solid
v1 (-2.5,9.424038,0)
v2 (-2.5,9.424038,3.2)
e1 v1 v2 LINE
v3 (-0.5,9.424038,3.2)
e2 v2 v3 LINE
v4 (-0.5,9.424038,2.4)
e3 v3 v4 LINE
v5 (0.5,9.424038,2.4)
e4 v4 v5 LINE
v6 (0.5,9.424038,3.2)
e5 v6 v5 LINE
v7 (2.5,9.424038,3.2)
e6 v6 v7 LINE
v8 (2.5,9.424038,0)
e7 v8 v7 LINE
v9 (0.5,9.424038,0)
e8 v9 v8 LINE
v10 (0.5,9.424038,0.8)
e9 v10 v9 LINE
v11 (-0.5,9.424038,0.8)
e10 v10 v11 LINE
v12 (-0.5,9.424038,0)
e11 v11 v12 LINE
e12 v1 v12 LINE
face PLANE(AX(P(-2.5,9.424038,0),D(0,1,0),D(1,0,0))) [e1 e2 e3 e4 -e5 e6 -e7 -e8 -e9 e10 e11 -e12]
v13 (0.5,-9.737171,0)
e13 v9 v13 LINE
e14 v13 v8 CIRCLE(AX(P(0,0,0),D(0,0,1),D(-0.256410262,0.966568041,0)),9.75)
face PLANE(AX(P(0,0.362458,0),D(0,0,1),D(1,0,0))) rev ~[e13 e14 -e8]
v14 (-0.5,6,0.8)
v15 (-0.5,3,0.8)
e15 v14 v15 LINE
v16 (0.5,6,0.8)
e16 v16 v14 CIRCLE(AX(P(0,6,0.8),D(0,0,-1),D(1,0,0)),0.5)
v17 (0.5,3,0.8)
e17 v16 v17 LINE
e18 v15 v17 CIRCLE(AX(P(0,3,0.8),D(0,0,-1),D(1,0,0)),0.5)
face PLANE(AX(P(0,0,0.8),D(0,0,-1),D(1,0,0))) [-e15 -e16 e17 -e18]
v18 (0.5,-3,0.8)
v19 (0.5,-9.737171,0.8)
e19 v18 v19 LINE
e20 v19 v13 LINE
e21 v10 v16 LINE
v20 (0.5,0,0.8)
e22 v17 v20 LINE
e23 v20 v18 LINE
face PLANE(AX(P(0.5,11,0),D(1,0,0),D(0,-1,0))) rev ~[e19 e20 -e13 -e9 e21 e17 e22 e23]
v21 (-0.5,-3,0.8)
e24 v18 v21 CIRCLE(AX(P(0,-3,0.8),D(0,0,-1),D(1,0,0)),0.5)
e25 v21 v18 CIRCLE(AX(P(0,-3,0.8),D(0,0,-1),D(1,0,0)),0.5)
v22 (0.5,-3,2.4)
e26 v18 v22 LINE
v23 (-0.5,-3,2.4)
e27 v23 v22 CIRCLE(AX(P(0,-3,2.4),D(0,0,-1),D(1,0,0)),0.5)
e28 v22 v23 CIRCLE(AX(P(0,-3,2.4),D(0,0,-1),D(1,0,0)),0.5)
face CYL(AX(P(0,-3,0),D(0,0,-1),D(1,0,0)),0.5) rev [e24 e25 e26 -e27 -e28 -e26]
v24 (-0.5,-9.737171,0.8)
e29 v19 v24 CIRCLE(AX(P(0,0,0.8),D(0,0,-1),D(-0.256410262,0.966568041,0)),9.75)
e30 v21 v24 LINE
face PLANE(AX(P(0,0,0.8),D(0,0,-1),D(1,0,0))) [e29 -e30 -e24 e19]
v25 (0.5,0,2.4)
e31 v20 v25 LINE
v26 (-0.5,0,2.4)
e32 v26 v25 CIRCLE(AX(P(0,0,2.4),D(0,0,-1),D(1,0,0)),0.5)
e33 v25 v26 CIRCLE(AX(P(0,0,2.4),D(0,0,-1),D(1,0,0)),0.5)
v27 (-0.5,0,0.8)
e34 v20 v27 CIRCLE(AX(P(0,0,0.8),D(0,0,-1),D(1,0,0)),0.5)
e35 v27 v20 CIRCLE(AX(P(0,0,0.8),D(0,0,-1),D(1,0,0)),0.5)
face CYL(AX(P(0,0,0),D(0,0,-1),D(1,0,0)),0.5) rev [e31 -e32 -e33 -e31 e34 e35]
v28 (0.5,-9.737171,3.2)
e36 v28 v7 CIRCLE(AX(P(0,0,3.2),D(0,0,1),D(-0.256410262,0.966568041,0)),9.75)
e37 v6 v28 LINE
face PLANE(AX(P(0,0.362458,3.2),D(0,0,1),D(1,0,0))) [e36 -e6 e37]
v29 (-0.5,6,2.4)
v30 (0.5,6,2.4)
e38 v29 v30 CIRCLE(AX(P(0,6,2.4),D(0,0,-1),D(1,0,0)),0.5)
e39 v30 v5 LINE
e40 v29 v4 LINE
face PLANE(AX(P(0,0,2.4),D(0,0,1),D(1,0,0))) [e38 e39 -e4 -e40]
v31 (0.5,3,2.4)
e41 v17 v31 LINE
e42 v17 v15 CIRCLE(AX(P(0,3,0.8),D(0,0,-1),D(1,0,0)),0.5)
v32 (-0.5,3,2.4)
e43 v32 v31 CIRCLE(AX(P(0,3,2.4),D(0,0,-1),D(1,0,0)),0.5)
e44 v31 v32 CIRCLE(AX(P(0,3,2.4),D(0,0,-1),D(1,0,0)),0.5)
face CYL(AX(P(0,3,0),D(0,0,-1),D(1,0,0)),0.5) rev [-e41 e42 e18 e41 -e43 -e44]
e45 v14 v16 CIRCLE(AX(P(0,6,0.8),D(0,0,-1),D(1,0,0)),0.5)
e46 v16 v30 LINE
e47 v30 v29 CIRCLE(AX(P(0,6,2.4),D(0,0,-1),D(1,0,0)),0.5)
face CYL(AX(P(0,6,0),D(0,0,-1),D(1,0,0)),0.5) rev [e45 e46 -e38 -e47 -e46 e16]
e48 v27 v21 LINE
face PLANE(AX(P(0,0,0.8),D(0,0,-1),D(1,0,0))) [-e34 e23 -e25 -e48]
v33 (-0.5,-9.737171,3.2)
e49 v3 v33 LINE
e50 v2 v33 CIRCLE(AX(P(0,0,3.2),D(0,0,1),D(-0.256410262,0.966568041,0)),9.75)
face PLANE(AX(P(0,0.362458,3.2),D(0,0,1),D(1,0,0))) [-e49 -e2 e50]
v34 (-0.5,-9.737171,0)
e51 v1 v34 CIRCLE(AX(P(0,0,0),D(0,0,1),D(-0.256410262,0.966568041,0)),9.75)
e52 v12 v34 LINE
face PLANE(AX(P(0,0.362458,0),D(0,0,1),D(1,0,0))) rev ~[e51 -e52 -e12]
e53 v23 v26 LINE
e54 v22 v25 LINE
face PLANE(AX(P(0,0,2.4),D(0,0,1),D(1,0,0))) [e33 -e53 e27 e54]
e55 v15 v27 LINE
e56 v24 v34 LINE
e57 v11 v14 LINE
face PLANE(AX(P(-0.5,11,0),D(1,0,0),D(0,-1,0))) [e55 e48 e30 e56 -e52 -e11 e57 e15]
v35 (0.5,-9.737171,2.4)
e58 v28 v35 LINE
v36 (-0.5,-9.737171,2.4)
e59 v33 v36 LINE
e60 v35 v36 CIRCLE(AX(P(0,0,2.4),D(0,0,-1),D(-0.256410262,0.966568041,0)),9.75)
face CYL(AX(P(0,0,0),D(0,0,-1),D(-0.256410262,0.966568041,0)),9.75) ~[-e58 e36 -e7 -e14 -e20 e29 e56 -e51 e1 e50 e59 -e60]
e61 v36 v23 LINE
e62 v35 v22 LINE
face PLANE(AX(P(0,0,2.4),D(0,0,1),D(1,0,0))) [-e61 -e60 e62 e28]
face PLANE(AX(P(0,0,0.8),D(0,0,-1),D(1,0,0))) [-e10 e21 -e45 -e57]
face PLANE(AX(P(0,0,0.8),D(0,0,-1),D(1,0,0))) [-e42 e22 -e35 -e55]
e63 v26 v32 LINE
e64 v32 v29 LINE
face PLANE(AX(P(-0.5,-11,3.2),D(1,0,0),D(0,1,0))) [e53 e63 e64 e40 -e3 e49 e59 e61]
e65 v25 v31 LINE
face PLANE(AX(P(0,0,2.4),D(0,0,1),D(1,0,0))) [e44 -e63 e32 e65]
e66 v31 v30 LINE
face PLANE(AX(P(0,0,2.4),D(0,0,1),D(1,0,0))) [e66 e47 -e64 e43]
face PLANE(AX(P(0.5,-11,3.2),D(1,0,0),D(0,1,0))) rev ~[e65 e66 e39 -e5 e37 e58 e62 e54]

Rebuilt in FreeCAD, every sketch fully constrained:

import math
import FreeCAD as App
import Part
import Sketcher

doc = App.newDocument("Part")
body = doc.addObject("PartDesign::Body", "Body")

sketch1 = doc.addObject("Sketcher::SketchObject", "Sketch")
body.addObject(sketch1)
sketch1.AttachmentSupport = (doc.XY_Plane, [""])
sketch1.MapMode = "FlatFace"
sketch1.addGeometry([
    Part.ArcOfCircle(Part.Circle(App.Vector(0, 0, 0), App.Vector(0, 0, 1), 10), math.radians(105), math.radians(435)),
    Part.LineSegment(App.Vector(2, 9, 0), App.Vector(-2, 9, 0)),
], False)
sketch1.addConstraint([
    Sketcher.Constraint("Coincident", 0, 1, 1, 2),
    Sketcher.Constraint("Coincident", 1, 1, 0, 2),
    Sketcher.Constraint("Horizontal", 1),
    Sketcher.Constraint("Coincident", 0, 3, -1, 1),
    Sketcher.Constraint("DistanceX", 1, 2, 1, 1, 5.0),
    Sketcher.Constraint("Radius", 0, 9.75),
])
pad1 = doc.addObject("PartDesign::Pad", "Pad")
body.addObject(pad1)
pad1.Profile = sketch1
pad1.Length = 3.2

sketch2 = doc.addObject("Sketcher::SketchObject", "Sketch001")
body.addObject(sketch2)
sketch2.AttachmentSupport = (doc.XY_Plane, [""])
sketch2.MapMode = "FlatFace"
sketch2.AttachmentOffset = App.Placement(App.Vector(0, 0, 3.2), App.Rotation())
sketch2.addGeometry([
    Part.LineSegment(App.Vector(-0.5, 11, 0), App.Vector(-0.5, -11, 0)),
    Part.LineSegment(App.Vector(-0.5, -11, 0), App.Vector(0.5, -11, 0)),
    Part.LineSegment(App.Vector(0.5, -11, 0), App.Vector(0.5, 11, 0)),
    Part.LineSegment(App.Vector(0.5, 11, 0), App.Vector(-0.5, 11, 0)),
], False)
sketch2.addConstraint([
    Sketcher.Constraint("Coincident", 0, 2, 1, 1),
    Sketcher.Constraint("Coincident", 1, 2, 2, 1),
    Sketcher.Constraint("Coincident", 2, 2, 3, 1),
    Sketcher.Constraint("Coincident", 3, 2, 0, 1),
    Sketcher.Constraint("Vertical", 0),
    Sketcher.Constraint("Horizontal", 1),
    Sketcher.Constraint("Vertical", 2),
    Sketcher.Constraint("Horizontal", 3),
    Sketcher.Constraint("Symmetric", 0, 2, 2, 2, -1, 1),
    Sketcher.Constraint("DistanceX", 1, 1, 1, 2, 1.0),
    Sketcher.Constraint("DistanceY", 0, 2, 0, 1, 22.0),
])
pocket1 = doc.addObject("PartDesign::Pocket", "Pocket")
body.addObject(pocket1)
pocket1.Profile = sketch2
pocket1.Length = 0.8

sketch3 = doc.addObject("Sketcher::SketchObject", "Sketch002")
body.addObject(sketch3)
sketch3.AttachmentSupport = (doc.XY_Plane, [""])
sketch3.MapMode = "FlatFace"
sketch3.addGeometry([
    Part.Circle(App.Vector(0, 6, 0), App.Vector(0, 0, 1), 0.5),
    Part.Circle(App.Vector(0, 3, 0), App.Vector(0, 0, 1), 0.5),
    Part.Circle(App.Vector(0, 0, 0), App.Vector(0, 0, 1), 0.5),
    Part.Circle(App.Vector(0, -3, 0), App.Vector(0, 0, 1), 0.5),
], False)
sketch3.addConstraint([
    Sketcher.Constraint("Coincident", 2, 3, -1, 1),
    Sketcher.Constraint("Equal", 0, 1),
    Sketcher.Constraint("Equal", 1, 2),
    Sketcher.Constraint("Equal", 2, 3),
    Sketcher.Constraint("Symmetric", 1, 3, 3, 3, -1, 1),
    Sketcher.Constraint("PointOnObject", 0, 3, -2),
    Sketcher.Constraint("PointOnObject", 1, 3, -2),
    Sketcher.Constraint("Diameter", 0, 1.0),
    Sketcher.Constraint("DistanceY", -1, 1, 0, 3, 6.0),
    Sketcher.Constraint("DistanceY", -1, 1, 1, 3, 3.0),
])
pocket2 = doc.addObject("PartDesign::Pocket", "Pocket001")
body.addObject(pocket2)
pocket2.Profile = sketch3
pocket2.Type = "ThroughAll"
pocket2.Reversed = True

sketch4 = doc.addObject("Sketcher::SketchObject", "Sketch003")
body.addObject(sketch4)
sketch4.AttachmentSupport = (doc.XY_Plane, [""])
sketch4.MapMode = "FlatFace"
sketch4.addGeometry([
    Part.LineSegment(App.Vector(-0.5, -11, 0), App.Vector(-0.5, 11, 0)),
    Part.LineSegment(App.Vector(-0.5, 11, 0), App.Vector(0.5, 11, 0)),
    Part.LineSegment(App.Vector(0.5, 11, 0), App.Vector(0.5, -11, 0)),
    Part.LineSegment(App.Vector(0.5, -11, 0), App.Vector(-0.5, -11, 0)),
], False)
sketch4.addConstraint([
    Sketcher.Constraint("Coincident", 0, 2, 1, 1),
    Sketcher.Constraint("Coincident", 1, 2, 2, 1),
    Sketcher.Constraint("Coincident", 2, 2, 3, 1),
    Sketcher.Constraint("Coincident", 3, 2, 0, 1),
    Sketcher.Constraint("Vertical", 0),
    Sketcher.Constraint("Horizontal", 1),
    Sketcher.Constraint("Vertical", 2),
    Sketcher.Constraint("Horizontal", 3),
    Sketcher.Constraint("Symmetric", 0, 2, 2, 2, -1, 1),
    Sketcher.Constraint("DistanceX", 1, 1, 1, 2, 1.0),
    Sketcher.Constraint("DistanceY", 0, 1, 0, 2, 22.0),
])
pocket3 = doc.addObject("PartDesign::Pocket", "Pocket002")
body.addObject(pocket3)
pocket3.Profile = sketch4
pocket3.Length = 0.8
pocket3.Reversed = True

doc.recompute()
